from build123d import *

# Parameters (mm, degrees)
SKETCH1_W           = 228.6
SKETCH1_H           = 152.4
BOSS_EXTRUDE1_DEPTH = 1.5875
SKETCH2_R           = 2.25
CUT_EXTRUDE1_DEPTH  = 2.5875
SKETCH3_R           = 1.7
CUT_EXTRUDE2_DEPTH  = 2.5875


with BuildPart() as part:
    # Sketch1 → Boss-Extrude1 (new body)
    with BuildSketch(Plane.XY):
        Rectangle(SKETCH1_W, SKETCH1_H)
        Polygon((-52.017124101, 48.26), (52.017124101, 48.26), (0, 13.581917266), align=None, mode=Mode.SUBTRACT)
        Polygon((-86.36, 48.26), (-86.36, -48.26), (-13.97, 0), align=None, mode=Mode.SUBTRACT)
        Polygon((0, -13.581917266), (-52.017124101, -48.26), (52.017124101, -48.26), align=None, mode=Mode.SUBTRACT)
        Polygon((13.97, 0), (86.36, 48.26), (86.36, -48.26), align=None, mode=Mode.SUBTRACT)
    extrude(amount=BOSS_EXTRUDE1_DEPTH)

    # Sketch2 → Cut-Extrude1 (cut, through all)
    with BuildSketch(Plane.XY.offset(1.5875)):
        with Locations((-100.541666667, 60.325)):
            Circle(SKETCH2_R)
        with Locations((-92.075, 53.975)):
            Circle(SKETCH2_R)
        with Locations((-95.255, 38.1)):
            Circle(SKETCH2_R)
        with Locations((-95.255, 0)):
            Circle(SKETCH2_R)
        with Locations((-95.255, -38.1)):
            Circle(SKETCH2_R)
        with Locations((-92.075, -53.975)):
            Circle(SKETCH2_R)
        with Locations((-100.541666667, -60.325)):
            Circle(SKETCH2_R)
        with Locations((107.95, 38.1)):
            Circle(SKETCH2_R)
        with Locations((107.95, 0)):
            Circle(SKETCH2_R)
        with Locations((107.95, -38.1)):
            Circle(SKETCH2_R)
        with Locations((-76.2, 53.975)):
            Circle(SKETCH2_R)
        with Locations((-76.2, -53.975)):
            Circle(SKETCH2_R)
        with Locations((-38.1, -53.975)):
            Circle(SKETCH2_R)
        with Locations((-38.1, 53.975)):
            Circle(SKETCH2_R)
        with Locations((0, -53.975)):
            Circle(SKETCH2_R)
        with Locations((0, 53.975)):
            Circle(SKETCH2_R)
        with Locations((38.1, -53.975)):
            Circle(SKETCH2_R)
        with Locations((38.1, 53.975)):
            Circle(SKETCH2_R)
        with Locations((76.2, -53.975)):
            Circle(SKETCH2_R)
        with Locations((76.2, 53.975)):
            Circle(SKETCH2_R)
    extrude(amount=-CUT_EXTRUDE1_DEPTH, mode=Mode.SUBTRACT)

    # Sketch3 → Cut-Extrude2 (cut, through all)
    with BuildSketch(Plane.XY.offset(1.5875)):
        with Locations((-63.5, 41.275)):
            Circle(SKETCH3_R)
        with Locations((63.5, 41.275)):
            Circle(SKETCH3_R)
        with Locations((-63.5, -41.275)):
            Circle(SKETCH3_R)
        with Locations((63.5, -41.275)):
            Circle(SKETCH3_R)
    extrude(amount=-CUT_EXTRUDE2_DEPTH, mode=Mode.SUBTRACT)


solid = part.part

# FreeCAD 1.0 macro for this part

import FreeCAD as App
import Part
import Sketcher

V = App.Vector
Q = App.Units.Quantity

doc = App.newDocument("Part")
params = doc.addObject("Spreadsheet::Sheet", "Params")
for row, (alias, value) in enumerate([
    ("sketch1_width", "9 in"),
    ("sketch1_height", "6 in"),
    ("sketch1_height2", "3.8 in"),
    ("pad1_length", "0.0625 in"),
], start=1):
    params.set(f"A{row}", alias)
    params.set(f"B{row}", "=" + value)
    params.setAlias(f"B{row}", alias)

body = doc.addObject("PartDesign::Body", "Body")

# Sketch on XY plane
sketch1 = body.newObject("Sketcher::SketchObject", "Sketch")
sketch1.AttachmentSupport = (doc.getObject("XY_Plane"), [""])
sketch1.MapMode = "FlatFace"
sketch1.addGeometry(Part.LineSegment(V(-114.3, 76.2, 0), V(-114.3, -76.2, 0)), False)
sketch1.addGeometry(Part.LineSegment(V(-114.3, -76.2, 0), V(114.3, -76.2, 0)), False)
sketch1.addGeometry(Part.LineSegment(V(114.3, -76.2, 0), V(114.3, 76.2, 0)), False)
sketch1.addGeometry(Part.LineSegment(V(114.3, 76.2, 0), V(-114.3, 76.2, 0)), False)
sketch1.addGeometry(Part.LineSegment(V(-52.017124, -48.26, 0), V(0, -13.581917, 0)), False)
sketch1.addGeometry(Part.LineSegment(V(0, -13.581917, 0), V(52.017124, -48.26, 0)), False)
sketch1.addGeometry(Part.LineSegment(V(52.017124, -48.26, 0), V(-52.017124, -48.26, 0)), False)
sketch1.addGeometry(Part.LineSegment(V(-86.36, -48.26, 0), V(-86.36, 48.26, 0)), False)
sketch1.addGeometry(Part.LineSegment(V(-86.36, 48.26, 0), V(-13.97, 0, 0)), False)
sketch1.addGeometry(Part.LineSegment(V(-13.97, 0, 0), V(-86.36, -48.26, 0)), False)
sketch1.addGeometry(Part.LineSegment(V(86.36, -48.26, 0), V(13.97, 0, 0)), False)
sketch1.addGeometry(Part.LineSegment(V(13.97, 0, 0), V(86.36, 48.26, 0)), False)
sketch1.addGeometry(Part.LineSegment(V(86.36, 48.26, 0), V(86.36, -48.26, 0)), False)
sketch1.addGeometry(Part.LineSegment(V(0, 13.581917, 0), V(-52.017124, 48.26, 0)), False)
sketch1.addGeometry(Part.LineSegment(V(-52.017124, 48.26, 0), V(52.017124, 48.26, 0)), False)
sketch1.addGeometry(Part.LineSegment(V(52.017124, 48.26, 0), V(0, 13.581917, 0)), False)
sketch1.addConstraint(Sketcher.Constraint("Coincident", 0, 2, 1, 1))
sketch1.addConstraint(Sketcher.Constraint("Coincident", 1, 2, 2, 1))
sketch1.addConstraint(Sketcher.Constraint("Coincident", 2, 2, 3, 1))
sketch1.addConstraint(Sketcher.Constraint("Coincident", 3, 2, 0, 1))
sketch1.addConstraint(Sketcher.Constraint("Coincident", 4, 2, 5, 1))
sketch1.addConstraint(Sketcher.Constraint("Coincident", 5, 2, 6, 1))
sketch1.addConstraint(Sketcher.Constraint("Coincident", 6, 2, 4, 1))
sketch1.addConstraint(Sketcher.Constraint("Coincident", 7, 2, 8, 1))
sketch1.addConstraint(Sketcher.Constraint("Coincident", 8, 2, 9, 1))
sketch1.addConstraint(Sketcher.Constraint("Coincident", 9, 2, 7, 1))
sketch1.addConstraint(Sketcher.Constraint("Coincident", 10, 2, 11, 1))
sketch1.addConstraint(Sketcher.Constraint("Coincident", 11, 2, 12, 1))
sketch1.addConstraint(Sketcher.Constraint("Coincident", 12, 2, 10, 1))
sketch1.addConstraint(Sketcher.Constraint("Coincident", 13, 2, 14, 1))
sketch1.addConstraint(Sketcher.Constraint("Coincident", 14, 2, 15, 1))
sketch1.addConstraint(Sketcher.Constraint("Coincident", 15, 2, 13, 1))
sketch1.addConstraint(Sketcher.Constraint("Vertical", 0))
sketch1.addConstraint(Sketcher.Constraint("Horizontal", 1))
sketch1.addConstraint(Sketcher.Constraint("Vertical", 2))
sketch1.addConstraint(Sketcher.Constraint("Horizontal", 3))
sketch1.addConstraint(Sketcher.Constraint("Horizontal", 6))
sketch1.addConstraint(Sketcher.Constraint("Vertical", 7))
sketch1.addConstraint(Sketcher.Constraint("Vertical", 12))
sketch1.addConstraint(Sketcher.Constraint("Horizontal", 14))
sketch1.addConstraint(Sketcher.Constraint("Symmetric", 0, 2, 2, 2, -1, 1))
sketch1.addConstraint(Sketcher.Constraint("Symmetric", 8, 2, 10, 2, -1, 1))
sketch1.addConstraint(Sketcher.Constraint("Symmetric", 9, 2, 11, 2, -1, 1))
sketch1.addConstraint(Sketcher.Constraint("Symmetric", 5, 2, 13, 2, -1, 1))
sketch1.addConstraint(Sketcher.Constraint("Symmetric", 4, 2, 15, 2, -1, 1))
sketch1.addConstraint(Sketcher.Constraint("PointOnObject", 4, 2, -2))
sketch1.addConstraint(Sketcher.Constraint("PointOnObject", 8, 2, -1))
sketch1.addConstraint(Sketcher.Constraint("Parallel", 5, 8))
sketch1.addConstraint(Sketcher.Constraint("Parallel", 4, 9))
sketch1.addConstraint(Sketcher.Constraint("Parallel", 8, 10))
sketch1.addConstraint(Sketcher.Constraint("Parallel", 11, 15))
sketch1.addConstraint(Sketcher.Constraint("Horizontal", 6, 2, 9, 2))
sketch1.addConstraint(Sketcher.Constraint("Horizontal", 7, 2, 11, 2))
sketch1.addConstraint(Sketcher.Constraint("DistanceX", 1, 1, 1, 2, Q("9 in")))
sketch1.addConstraint(Sketcher.Constraint("DistanceY", 0, 2, 0, 1, Q("6 in")))
sketch1.addConstraint(Sketcher.Constraint("DistanceY", 7, 1, 7, 2, Q("3.8 in")))
sketch1.addConstraint(Sketcher.Constraint("DistanceX", 7, 2, -1, 1, Q("3.4 in")))
sketch1.addConstraint(Sketcher.Constraint("DistanceX", 8, 2, 10, 2, Q("1.1 in")))
sketch1.addConstraint(Sketcher.Constraint("DistanceX", 6, 2, 6, 1, 104.034248))
sketch1.setExpression("Constraints[37]", "Params.sketch1_width")
sketch1.setExpression("Constraints[38]", "Params.sketch1_height")
sketch1.setExpression("Constraints[39]", "Params.sketch1_height2")
pad1 = body.newObject("PartDesign::Pad", "Pad")
pad1.Profile = sketch1
pad1.setExpression("Length", "Params.pad1_length")

# Sketch on XY plane
sketch2 = body.newObject("Sketcher::SketchObject", "Sketch001")
sketch2.AttachmentSupport = (doc.getObject("XY_Plane"), [""])
sketch2.MapMode = "FlatFace"
sketch2.AttachmentOffset = App.Placement(V(0, 0, 0.0625 * 25.4), App.Rotation())
sketch2.addGeometry(Part.Circle(V(-100.541667, 60.325, 0), V(0, 0, 1), 2.25), False)
sketch2.addGeometry(Part.Circle(V(-92.075, 53.975, 0), V(0, 0, 1), 2.25), False)
sketch2.addGeometry(Part.Circle(V(-95.255, 38.1, 0), V(0, 0, 1), 2.25), False)
sketch2.addGeometry(Part.Circle(V(-95.255, 0, 0), V(0, 0, 1), 2.25), False)
sketch2.addGeometry(Part.Circle(V(-95.255, -38.1, 0), V(0, 0, 1), 2.25), False)
sketch2.addGeometry(Part.Circle(V(-92.075, -53.975, 0), V(0, 0, 1), 2.25), False)
sketch2.addGeometry(Part.Circle(V(-100.541667, -60.325, 0), V(0, 0, 1), 2.25), False)
sketch2.addGeometry(Part.Circle(V(107.95, 38.1, 0), V(0, 0, 1), 2.25), False)
sketch2.addGeometry(Part.Circle(V(107.95, 0, 0), V(0, 0, 1), 2.25), False)
sketch2.addGeometry(Part.Circle(V(107.95, -38.1, 0), V(0, 0, 1), 2.25), False)
sketch2.addGeometry(Part.Circle(V(-76.2, 53.975, 0), V(0, 0, 1), 2.25), False)
sketch2.addGeometry(Part.Circle(V(-76.2, -53.975, 0), V(0, 0, 1), 2.25), False)
sketch2.addGeometry(Part.Circle(V(-38.1, -53.975, 0), V(0, 0, 1), 2.25), False)
sketch2.addGeometry(Part.Circle(V(-38.1, 53.975, 0), V(0, 0, 1), 2.25), False)
sketch2.addGeometry(Part.Circle(V(0, -53.975, 0), V(0, 0, 1), 2.25), False)
sketch2.addGeometry(Part.Circle(V(0, 53.975, 0), V(0, 0, 1), 2.25), False)
sketch2.addGeometry(Part.Circle(V(38.1, -53.975, 0), V(0, 0, 1), 2.25), False)
sketch2.addGeometry(Part.Circle(V(38.1, 53.975, 0), V(0, 0, 1), 2.25), False)
sketch2.addGeometry(Part.Circle(V(76.2, -53.975, 0), V(0, 0, 1), 2.25), False)
sketch2.addGeometry(Part.Circle(V(76.2, 53.975, 0), V(0, 0, 1), 2.25), False)
sketch2.addConstraint(Sketcher.Constraint("Equal", 0, 1))
sketch2.addConstraint(Sketcher.Constraint("Equal", 1, 2))
sketch2.addConstraint(Sketcher.Constraint("Equal", 2, 3))
sketch2.addConstraint(Sketcher.Constraint("Equal", 3, 4))
sketch2.addConstraint(Sketcher.Constraint("Equal", 4, 5))
sketch2.addConstraint(Sketcher.Constraint("Equal", 5, 6))
sketch2.addConstraint(Sketcher.Constraint("Equal", 6, 7))
sketch2.addConstraint(Sketcher.Constraint("Equal", 7, 8))
sketch2.addConstraint(Sketcher.Constraint("Equal", 8, 9))
sketch2.addConstraint(Sketcher.Constraint("Equal", 9, 10))
sketch2.addConstraint(Sketcher.Constraint("Equal", 10, 11))
sketch2.addConstraint(Sketcher.Constraint("Equal", 11, 12))
sketch2.addConstraint(Sketcher.Constraint("Equal", 12, 13))
sketch2.addConstraint(Sketcher.Constraint("Equal", 13, 14))
sketch2.addConstraint(Sketcher.Constraint("Equal", 14, 15))
sketch2.addConstraint(Sketcher.Constraint("Equal", 15, 16))
sketch2.addConstraint(Sketcher.Constraint("Equal", 16, 17))
sketch2.addConstraint(Sketcher.Constraint("Equal", 17, 18))
sketch2.addConstraint(Sketcher.Constraint("Equal", 18, 19))
sketch2.addConstraint(Sketcher.Constraint("Symmetric", 14, 3, 15, 3, -1, 1))
sketch2.addConstraint(Sketcher.Constraint("Symmetric", 13, 3, 16, 3, -1, 1))
sketch2.addConstraint(Sketcher.Constraint("Symmetric", 12, 3, 17, 3, -1, 1))
sketch2.addConstraint(Sketcher.Constraint("Symmetric", 10, 3, 18, 3, -1, 1))
sketch2.addConstraint(Sketcher.Constraint("Symmetric", 11, 3, 19, 3, -1, 1))
sketch2.addConstraint(Sketcher.Constraint("Symmetric", 12, 3, 16, 3, -2))
sketch2.addConstraint(Sketcher.Constraint("Symmetric", 11, 3, 18, 3, -2))
sketch2.addConstraint(Sketcher.Constraint("Symmetric", 2, 3, 4, 3, -1))
sketch2.addConstraint(Sketcher.Constraint("Symmetric", 1, 3, 5, 3, -1))
sketch2.addConstraint(Sketcher.Constraint("Symmetric", 0, 3, 6, 3, -1))
sketch2.addConstraint(Sketcher.Constraint("Symmetric", 7, 3, 9, 3, -1))
sketch2.addConstraint(Sketcher.Constraint("PointOnObject", 3, 3, -1))
sketch2.addConstraint(Sketcher.Constraint("PointOnObject", 8, 3, -1))
sketch2.addConstraint(Sketcher.Constraint("PointOnObject", 14, 3, -2))
sketch2.addConstraint(Sketcher.Constraint("Horizontal", 2, 3, 7, 3))
sketch2.addConstraint(Sketcher.Constraint("Horizontal", 1, 3, 10, 3))
sketch2.addConstraint(Sketcher.Constraint("Horizontal", 11, 3, 12, 3))
sketch2.addConstraint(Sketcher.Constraint("Horizontal", 12, 3, 14, 3))
sketch2.addConstraint(Sketcher.Constraint("Vertical", 2, 3, 3, 3))
sketch2.addConstraint(Sketcher.Constraint("Vertical", 7, 3, 8, 3))
sketch2.addConstraint(Sketcher.Constraint("DistanceX", 10, 3, -1, 1, Q("3 in")))
sketch2.addConstraint(Sketcher.Constraint("DistanceY", 4, 3, 2, 3, Q("3 in")))
sketch2.addConstraint(Sketcher.Constraint("DistanceX", 12, 3, 16, 3, Q("3 in")))
sketch2.addConstraint(Sketcher.Constraint("DistanceY", 5, 3, 0, 3, Q("4.5 in")))
sketch2.addConstraint(Sketcher.Constraint("Diameter", 0, 4.5))
sketch2.addConstraint(Sketcher.Constraint("DistanceX", -1, 1, 7, 3, Q("4.25 in")))
sketch2.addConstraint(Sketcher.Constraint("DistanceY", 1, 3, 0, 3, Q("0.25 in")))
sketch2.addConstraint(Sketcher.Constraint("DistanceX", 1, 3, -1, 1, Q("3.625 in")))
sketch2.addConstraint(Sketcher.Constraint("DistanceX", 2, 3, -1, 1, 95.255))
sketch2.addConstraint(Sketcher.Constraint("DistanceX", 0, 3, -1, 1, 100.541667))
pocket1 = body.newObject("PartDesign::Pocket", "Pocket")
pocket1.Profile = sketch2
pocket1.Type = "ThroughAll"

# Sketch on XY plane
sketch3 = body.newObject("Sketcher::SketchObject", "Sketch002")
sketch3.AttachmentSupport = (doc.getObject("XY_Plane"), [""])
sketch3.MapMode = "FlatFace"
sketch3.AttachmentOffset = App.Placement(V(0, 0, 0.0625 * 25.4), App.Rotation())
sketch3.addGeometry(Part.Circle(V(-63.5, 41.275, 0), V(0, 0, 1), 1.7), False)
sketch3.addGeometry(Part.Circle(V(63.5, 41.275, 0), V(0, 0, 1), 1.7), False)
sketch3.addGeometry(Part.Circle(V(-63.5, -41.275, 0), V(0, 0, 1), 1.7), False)
sketch3.addGeometry(Part.Circle(V(63.5, -41.275, 0), V(0, 0, 1), 1.7), False)
sketch3.addConstraint(Sketcher.Constraint("Equal", 0, 1))
sketch3.addConstraint(Sketcher.Constraint("Equal", 1, 2))
sketch3.addConstraint(Sketcher.Constraint("Equal", 2, 3))
sketch3.addConstraint(Sketcher.Constraint("Symmetric", 1, 3, 2, 3, -1, 1))
sketch3.addConstraint(Sketcher.Constraint("Symmetric", 0, 3, 3, 3, -1, 1))
sketch3.addConstraint(Sketcher.Constraint("Symmetric", 0, 3, 1, 3, -2))
sketch3.addConstraint(Sketcher.Constraint("DistanceX", 0, 3, 1, 3, Q("5 in")))
sketch3.addConstraint(Sketcher.Constraint("Diameter", 0, 3.4))
sketch3.addConstraint(Sketcher.Constraint("DistanceY", 2, 3, 0, 3, Q("3.25 in")))
pocket2 = body.newObject("PartDesign::Pocket", "Pocket001")
pocket2.Profile = sketch3
pocket2.Type = "ThroughAll"

doc.recompute()
